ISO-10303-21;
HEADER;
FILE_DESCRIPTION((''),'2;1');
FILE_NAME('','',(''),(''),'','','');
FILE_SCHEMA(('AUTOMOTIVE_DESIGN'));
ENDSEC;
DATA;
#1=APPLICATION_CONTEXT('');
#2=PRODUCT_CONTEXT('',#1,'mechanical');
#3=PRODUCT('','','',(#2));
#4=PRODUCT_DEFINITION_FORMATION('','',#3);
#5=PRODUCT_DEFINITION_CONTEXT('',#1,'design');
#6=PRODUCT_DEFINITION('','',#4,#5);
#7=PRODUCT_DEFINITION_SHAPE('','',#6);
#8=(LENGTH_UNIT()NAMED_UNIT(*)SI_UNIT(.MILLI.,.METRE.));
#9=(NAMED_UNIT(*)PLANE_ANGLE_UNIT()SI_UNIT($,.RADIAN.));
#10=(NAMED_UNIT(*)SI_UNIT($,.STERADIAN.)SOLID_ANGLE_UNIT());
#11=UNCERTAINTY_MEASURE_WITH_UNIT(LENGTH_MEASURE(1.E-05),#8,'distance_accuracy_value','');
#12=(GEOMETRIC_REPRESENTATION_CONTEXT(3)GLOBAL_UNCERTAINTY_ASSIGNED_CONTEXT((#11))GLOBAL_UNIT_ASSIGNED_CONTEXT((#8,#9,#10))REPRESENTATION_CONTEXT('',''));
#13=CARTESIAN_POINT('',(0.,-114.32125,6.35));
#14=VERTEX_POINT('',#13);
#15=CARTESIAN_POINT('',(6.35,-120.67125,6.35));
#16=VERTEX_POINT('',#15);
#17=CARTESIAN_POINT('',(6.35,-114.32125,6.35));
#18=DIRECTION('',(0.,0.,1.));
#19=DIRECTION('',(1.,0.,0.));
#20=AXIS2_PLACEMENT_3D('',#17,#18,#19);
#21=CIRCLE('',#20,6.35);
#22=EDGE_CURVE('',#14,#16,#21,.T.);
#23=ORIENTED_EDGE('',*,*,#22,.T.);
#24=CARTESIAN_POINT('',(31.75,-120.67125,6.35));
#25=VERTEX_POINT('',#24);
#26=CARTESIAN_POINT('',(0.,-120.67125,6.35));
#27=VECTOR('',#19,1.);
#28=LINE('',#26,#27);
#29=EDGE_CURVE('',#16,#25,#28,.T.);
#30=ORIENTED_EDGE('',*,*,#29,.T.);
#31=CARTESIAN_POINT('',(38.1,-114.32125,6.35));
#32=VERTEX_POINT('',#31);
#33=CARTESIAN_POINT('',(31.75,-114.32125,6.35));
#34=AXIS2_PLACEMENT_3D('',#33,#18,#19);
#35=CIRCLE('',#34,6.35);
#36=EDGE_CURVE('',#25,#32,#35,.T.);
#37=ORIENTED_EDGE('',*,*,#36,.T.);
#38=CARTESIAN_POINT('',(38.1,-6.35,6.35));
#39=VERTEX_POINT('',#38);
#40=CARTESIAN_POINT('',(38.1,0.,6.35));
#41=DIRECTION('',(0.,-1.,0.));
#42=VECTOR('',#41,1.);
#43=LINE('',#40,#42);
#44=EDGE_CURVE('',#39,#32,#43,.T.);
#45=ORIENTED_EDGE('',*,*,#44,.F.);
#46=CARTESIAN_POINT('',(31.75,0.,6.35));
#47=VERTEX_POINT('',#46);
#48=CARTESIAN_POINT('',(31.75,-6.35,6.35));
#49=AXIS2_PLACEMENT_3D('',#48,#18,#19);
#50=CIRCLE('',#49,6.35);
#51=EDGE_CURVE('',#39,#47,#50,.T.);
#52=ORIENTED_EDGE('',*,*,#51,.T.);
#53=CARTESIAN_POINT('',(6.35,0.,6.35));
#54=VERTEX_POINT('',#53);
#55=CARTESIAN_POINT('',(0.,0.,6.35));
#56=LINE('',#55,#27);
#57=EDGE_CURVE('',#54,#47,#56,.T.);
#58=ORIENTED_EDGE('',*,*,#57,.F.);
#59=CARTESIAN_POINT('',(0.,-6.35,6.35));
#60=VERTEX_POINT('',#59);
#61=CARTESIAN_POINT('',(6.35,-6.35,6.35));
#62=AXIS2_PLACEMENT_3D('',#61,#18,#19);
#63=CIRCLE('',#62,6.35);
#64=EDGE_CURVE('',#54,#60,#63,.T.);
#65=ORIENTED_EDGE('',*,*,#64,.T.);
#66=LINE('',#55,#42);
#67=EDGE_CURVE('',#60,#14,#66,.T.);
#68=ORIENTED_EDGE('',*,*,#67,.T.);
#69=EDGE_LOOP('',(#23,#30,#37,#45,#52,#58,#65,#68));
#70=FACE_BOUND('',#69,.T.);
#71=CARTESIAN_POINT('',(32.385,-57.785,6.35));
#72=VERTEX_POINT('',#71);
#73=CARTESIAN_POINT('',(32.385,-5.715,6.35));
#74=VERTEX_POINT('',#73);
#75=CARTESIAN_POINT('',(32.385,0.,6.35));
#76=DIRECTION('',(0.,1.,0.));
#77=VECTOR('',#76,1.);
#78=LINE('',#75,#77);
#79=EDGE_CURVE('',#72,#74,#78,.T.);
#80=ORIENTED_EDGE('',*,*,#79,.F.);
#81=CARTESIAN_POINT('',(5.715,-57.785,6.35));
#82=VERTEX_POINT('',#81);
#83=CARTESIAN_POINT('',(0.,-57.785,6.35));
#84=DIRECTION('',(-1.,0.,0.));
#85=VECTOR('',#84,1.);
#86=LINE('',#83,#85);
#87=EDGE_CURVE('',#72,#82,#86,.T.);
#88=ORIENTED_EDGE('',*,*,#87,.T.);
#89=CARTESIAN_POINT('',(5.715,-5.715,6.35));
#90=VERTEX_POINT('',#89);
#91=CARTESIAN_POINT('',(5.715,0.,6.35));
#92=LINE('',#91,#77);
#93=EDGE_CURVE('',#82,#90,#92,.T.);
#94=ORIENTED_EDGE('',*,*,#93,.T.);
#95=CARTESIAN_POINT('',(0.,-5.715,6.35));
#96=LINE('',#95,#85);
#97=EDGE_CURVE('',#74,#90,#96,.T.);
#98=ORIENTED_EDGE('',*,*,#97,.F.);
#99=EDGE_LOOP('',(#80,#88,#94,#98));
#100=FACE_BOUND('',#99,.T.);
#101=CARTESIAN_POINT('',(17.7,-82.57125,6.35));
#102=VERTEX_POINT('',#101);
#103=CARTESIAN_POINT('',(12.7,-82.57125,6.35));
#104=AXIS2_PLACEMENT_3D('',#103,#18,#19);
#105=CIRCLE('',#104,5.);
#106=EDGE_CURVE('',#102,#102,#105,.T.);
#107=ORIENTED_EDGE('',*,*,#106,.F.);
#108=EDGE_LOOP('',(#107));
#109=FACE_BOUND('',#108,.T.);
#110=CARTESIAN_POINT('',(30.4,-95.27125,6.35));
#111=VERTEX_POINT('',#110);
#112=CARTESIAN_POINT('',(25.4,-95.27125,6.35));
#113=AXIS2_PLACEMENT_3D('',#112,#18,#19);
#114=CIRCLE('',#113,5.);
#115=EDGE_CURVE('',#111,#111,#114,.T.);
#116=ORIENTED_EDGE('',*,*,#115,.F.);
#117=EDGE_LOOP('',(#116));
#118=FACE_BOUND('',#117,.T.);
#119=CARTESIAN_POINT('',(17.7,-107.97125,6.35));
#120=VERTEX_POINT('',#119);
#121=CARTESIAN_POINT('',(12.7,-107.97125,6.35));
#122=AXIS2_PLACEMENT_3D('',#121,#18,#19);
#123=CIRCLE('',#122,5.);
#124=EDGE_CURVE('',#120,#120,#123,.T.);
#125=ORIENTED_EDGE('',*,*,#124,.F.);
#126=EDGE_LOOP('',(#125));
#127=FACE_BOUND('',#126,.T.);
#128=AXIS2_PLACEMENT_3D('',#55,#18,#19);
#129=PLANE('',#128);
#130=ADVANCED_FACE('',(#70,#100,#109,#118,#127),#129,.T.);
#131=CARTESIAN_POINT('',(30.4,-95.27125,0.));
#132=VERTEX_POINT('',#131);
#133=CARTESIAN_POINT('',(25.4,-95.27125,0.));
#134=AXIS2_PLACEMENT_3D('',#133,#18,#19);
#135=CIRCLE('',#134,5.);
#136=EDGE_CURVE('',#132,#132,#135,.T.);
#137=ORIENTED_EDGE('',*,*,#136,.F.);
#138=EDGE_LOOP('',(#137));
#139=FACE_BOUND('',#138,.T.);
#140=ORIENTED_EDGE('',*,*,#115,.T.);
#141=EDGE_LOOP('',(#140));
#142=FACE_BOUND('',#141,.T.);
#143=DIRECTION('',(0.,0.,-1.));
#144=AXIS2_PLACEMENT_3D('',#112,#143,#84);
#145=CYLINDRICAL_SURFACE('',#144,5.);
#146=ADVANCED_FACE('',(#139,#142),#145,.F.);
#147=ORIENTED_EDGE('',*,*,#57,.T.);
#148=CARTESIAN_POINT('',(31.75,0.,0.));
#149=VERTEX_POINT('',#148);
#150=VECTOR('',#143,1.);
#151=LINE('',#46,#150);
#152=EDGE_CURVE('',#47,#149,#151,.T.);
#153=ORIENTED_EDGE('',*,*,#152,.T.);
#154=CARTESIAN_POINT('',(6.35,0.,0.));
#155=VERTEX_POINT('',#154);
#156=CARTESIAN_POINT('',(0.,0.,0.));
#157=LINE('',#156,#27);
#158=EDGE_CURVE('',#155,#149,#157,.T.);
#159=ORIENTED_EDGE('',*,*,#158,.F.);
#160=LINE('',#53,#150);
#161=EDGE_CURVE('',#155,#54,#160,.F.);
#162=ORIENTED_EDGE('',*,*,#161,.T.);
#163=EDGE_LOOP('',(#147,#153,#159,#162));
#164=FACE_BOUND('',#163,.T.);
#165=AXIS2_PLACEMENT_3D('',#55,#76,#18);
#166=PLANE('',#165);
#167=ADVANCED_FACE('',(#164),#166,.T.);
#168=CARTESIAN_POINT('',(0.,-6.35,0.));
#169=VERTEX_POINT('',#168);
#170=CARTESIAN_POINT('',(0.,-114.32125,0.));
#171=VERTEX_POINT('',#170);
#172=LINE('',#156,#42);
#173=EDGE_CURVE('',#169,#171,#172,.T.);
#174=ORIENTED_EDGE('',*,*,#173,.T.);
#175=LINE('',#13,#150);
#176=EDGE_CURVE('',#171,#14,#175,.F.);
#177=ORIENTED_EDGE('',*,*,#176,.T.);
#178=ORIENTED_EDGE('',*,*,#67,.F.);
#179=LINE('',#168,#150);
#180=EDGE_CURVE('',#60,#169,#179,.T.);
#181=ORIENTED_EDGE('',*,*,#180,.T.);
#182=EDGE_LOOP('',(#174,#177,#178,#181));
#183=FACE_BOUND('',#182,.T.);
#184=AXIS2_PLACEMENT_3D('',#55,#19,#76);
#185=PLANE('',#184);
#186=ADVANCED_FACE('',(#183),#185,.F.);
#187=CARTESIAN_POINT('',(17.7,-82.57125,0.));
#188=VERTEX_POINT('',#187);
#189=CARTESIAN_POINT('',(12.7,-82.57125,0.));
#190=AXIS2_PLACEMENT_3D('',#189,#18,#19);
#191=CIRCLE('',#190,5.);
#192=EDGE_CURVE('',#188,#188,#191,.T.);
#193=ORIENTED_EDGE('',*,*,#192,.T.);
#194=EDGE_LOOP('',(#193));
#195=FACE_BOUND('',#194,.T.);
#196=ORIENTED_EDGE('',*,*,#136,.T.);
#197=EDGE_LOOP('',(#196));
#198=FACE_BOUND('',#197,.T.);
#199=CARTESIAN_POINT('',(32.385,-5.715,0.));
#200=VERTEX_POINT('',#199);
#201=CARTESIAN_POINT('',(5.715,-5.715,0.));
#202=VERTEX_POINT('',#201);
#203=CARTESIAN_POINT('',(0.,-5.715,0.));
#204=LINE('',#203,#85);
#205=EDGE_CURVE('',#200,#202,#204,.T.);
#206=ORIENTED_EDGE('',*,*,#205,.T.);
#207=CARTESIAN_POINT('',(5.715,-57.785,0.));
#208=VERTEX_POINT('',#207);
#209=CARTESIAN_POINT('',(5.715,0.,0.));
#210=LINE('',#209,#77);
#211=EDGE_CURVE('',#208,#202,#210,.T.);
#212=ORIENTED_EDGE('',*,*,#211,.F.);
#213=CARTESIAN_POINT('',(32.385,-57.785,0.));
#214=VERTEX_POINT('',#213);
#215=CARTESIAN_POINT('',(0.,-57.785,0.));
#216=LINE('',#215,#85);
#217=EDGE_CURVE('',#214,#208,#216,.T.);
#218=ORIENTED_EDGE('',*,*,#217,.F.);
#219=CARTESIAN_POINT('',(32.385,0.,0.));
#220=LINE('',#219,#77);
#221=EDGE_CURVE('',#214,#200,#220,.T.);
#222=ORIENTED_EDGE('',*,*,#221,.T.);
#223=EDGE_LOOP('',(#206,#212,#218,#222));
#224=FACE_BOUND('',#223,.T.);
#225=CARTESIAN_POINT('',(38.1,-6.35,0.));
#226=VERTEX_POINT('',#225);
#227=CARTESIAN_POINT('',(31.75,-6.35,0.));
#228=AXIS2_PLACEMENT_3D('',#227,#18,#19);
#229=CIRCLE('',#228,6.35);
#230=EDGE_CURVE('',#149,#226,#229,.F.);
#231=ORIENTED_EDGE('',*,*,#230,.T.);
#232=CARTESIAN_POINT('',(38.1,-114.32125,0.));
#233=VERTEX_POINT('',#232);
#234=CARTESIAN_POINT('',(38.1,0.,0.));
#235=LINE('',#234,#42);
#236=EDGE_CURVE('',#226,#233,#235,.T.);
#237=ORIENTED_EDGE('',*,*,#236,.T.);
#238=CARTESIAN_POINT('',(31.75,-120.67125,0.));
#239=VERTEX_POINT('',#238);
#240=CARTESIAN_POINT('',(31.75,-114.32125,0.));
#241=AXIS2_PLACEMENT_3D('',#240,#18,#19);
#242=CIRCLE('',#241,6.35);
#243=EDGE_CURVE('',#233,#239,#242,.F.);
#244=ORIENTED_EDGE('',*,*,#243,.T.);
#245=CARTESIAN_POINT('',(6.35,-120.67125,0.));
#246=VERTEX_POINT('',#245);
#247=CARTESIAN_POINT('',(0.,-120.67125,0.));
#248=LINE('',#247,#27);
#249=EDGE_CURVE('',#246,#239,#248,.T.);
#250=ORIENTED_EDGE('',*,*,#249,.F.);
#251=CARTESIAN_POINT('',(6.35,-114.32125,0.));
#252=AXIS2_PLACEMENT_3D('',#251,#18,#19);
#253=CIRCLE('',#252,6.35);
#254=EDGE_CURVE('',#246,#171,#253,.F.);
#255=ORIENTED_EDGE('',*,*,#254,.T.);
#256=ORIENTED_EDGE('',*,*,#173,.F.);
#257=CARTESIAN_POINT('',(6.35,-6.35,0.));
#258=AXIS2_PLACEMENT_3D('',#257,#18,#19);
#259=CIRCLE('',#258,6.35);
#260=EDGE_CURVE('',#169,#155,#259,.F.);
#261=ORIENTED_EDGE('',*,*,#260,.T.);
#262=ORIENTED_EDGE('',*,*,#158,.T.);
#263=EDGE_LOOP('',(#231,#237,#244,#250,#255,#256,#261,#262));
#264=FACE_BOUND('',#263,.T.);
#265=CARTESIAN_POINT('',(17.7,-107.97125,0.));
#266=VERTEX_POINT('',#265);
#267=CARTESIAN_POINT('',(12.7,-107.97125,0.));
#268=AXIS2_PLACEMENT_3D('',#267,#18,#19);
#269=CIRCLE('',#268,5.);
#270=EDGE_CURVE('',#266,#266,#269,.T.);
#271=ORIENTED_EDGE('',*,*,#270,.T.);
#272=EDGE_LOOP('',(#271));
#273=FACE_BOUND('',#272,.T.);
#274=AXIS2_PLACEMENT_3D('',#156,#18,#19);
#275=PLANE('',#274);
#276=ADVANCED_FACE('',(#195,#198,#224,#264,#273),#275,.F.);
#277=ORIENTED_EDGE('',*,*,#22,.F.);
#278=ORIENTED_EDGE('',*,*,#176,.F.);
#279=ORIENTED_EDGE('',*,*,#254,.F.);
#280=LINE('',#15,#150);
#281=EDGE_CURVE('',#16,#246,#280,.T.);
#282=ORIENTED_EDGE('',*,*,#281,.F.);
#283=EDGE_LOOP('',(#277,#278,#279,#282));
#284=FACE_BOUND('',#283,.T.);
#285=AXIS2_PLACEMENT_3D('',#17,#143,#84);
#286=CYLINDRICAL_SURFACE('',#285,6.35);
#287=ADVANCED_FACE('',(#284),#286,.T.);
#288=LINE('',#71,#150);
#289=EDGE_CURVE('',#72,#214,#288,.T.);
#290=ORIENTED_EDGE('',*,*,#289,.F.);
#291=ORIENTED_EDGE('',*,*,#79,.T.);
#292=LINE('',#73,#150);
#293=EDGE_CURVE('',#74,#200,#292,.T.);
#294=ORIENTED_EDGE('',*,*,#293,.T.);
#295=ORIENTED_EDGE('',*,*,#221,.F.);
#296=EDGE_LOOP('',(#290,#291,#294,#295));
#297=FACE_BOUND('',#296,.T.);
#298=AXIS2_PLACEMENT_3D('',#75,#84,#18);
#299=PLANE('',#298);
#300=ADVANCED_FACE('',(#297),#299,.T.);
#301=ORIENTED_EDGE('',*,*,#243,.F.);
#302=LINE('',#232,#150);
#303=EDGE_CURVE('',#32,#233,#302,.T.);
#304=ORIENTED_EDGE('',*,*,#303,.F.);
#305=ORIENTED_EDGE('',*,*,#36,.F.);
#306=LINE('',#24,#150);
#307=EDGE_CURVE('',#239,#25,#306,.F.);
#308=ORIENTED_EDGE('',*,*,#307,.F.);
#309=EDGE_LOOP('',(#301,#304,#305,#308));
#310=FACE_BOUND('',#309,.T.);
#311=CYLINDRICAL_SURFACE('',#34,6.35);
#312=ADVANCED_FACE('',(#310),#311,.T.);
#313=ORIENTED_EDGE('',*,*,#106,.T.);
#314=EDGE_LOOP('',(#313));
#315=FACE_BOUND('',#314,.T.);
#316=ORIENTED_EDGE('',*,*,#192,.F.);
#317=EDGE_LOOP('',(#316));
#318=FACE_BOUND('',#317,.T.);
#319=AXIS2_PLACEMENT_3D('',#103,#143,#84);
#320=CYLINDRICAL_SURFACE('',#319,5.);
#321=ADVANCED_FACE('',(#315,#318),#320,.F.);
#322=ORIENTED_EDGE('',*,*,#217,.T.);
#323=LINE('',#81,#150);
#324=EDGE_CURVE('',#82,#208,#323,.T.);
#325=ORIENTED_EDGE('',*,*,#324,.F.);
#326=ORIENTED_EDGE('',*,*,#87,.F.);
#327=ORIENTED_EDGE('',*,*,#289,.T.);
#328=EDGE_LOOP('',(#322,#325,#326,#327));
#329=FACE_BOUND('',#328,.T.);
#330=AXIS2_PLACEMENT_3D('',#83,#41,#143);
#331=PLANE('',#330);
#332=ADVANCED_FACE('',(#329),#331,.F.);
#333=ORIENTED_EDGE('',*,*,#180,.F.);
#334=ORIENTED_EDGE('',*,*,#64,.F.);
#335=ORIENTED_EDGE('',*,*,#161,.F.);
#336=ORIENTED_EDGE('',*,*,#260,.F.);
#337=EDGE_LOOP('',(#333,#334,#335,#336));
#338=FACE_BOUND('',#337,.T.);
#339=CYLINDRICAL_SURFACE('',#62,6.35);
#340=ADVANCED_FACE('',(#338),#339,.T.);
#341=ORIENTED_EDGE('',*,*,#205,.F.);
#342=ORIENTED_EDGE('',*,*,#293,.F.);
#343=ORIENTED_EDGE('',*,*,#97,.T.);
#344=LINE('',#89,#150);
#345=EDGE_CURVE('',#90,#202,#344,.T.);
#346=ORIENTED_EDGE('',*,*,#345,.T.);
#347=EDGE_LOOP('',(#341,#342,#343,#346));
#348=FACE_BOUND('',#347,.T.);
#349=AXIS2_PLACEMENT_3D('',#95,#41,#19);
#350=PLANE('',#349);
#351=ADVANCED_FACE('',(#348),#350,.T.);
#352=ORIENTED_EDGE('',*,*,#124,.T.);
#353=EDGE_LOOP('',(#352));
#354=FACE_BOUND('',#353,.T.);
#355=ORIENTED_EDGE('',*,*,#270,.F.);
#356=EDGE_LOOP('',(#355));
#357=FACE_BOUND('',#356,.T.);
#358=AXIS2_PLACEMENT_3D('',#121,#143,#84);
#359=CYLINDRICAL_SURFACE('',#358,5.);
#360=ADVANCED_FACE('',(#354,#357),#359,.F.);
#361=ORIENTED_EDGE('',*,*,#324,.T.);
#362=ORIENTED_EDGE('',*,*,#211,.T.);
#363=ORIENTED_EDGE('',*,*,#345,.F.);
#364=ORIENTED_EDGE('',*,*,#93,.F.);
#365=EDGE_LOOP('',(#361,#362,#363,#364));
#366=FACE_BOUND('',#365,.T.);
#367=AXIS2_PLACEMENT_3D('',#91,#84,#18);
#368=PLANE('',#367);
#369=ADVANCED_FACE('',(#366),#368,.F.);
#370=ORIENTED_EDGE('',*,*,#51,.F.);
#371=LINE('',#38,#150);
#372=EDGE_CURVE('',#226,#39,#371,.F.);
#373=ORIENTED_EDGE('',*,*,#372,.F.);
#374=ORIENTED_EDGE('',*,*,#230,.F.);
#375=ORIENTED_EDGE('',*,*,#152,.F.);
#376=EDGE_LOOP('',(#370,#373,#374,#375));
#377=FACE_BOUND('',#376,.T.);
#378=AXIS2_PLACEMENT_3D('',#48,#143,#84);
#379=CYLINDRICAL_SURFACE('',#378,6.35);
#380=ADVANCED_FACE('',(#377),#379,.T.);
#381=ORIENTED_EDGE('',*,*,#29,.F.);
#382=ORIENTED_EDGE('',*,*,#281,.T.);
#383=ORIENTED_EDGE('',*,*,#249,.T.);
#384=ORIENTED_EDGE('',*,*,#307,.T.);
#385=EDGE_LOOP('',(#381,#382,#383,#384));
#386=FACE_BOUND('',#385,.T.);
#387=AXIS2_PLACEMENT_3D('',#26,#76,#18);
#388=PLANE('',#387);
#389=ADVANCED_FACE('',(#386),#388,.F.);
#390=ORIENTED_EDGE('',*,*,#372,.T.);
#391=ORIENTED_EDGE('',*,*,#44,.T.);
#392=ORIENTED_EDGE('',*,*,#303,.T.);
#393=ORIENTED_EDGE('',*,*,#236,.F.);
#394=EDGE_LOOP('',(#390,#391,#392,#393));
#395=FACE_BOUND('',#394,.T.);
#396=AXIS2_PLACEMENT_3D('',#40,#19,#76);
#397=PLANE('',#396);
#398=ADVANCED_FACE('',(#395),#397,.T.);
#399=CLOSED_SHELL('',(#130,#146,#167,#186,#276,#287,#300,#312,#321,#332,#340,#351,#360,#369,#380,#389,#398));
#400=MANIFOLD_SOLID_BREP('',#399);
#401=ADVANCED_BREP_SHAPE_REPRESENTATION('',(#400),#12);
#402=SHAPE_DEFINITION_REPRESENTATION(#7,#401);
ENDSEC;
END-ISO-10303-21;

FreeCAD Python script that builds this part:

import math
import FreeCAD as App
import Part
import Sketcher

V = App.Vector
Q = App.Units.Quantity


def edges_at(feature, points):
    """Names of the edges that pass closest to the given points."""
    edges = feature.Shape.Edges
    near = lambda p: min(range(len(edges)), key=lambda i: edges[i].distToShape(Part.Vertex(*p))[0])
    return sorted({f"Edge{near(p) + 1}" for p in points})


def add_polygon(sketch, points):
    """Adds a closed chain of lines whose ends are joined by coincident constraints."""
    first, n = sketch.GeometryCount, len(points)
    for a, b in zip(points, points[1:] + points[:1]):
        sketch.addGeometry(Part.LineSegment(App.Vector(*a, 0), App.Vector(*b, 0)), False)
    for i in range(n):
        sketch.addConstraint(Sketcher.Constraint("Coincident", first + i, 2, first + (i + 1) % n, 1))

doc = App.newDocument("Part")
body = doc.addObject("PartDesign::Body", "Body")

sketch1 = doc.addObject("Sketcher::SketchObject", "Sketch")
body.addObject(sketch1)
sketch1.AttachmentSupport = (doc.XY_Plane, [""])
sketch1.MapMode = "FlatFace"
add_polygon(sketch1, [(0, -121), (38, -121), (38, 0), (0, 0)])
sketch1.addGeometry(Part.ArcOfCircle(Part.Circle(V(13, -108, 0), V(0, 0, 1), 5), math.radians(90), math.radians(270)), False)
sketch1.addGeometry(Part.ArcOfCircle(Part.Circle(V(13, -108, 0), V(0, 0, 1), 5), math.radians(0), math.radians(90)), False)
sketch1.addGeometry(Part.ArcOfCircle(Part.Circle(V(13, -108, 0), V(0, 0, 1), 5), math.radians(-90), math.radians(0)), False)
sketch1.addGeometry(Part.ArcOfCircle(Part.Circle(V(13, -83, 0), V(0, 0, 1), 5), math.radians(90), math.radians(270)), False)
sketch1.addGeometry(Part.ArcOfCircle(Part.Circle(V(13, -83, 0), V(0, 0, 1), 5), math.radians(0), math.radians(90)), False)
sketch1.addGeometry(Part.ArcOfCircle(Part.Circle(V(13, -83, 0), V(0, 0, 1), 5), math.radians(-90), math.radians(0)), False)
sketch1.addGeometry(Part.ArcOfCircle(Part.Circle(V(25, -95, 0), V(0, 0, 1), 5), math.radians(90), math.radians(270)), False)
sketch1.addGeometry(Part.ArcOfCircle(Part.Circle(V(25, -95, 0), V(0, 0, 1), 5), math.radians(0), math.radians(90)), False)
sketch1.addGeometry(Part.ArcOfCircle(Part.Circle(V(25, -95, 0), V(0, 0, 1), 5), math.radians(-90), math.radians(0)), False)
add_polygon(sketch1, [(32, -58), (6, -58), (6, -6), (32, -6)])
sketch1.addConstraint(Sketcher.Constraint("Tangent", 4, 1, 5, 2))
sketch1.addConstraint(Sketcher.Constraint("Tangent", 5, 1, 6, 2))
sketch1.addConstraint(Sketcher.Constraint("Tangent", 6, 1, 4, 2))
sketch1.addConstraint(Sketcher.Constraint("Tangent", 7, 1, 8, 2))
sketch1.addConstraint(Sketcher.Constraint("Tangent", 8, 1, 9, 2))
sketch1.addConstraint(Sketcher.Constraint("Tangent", 9, 1, 7, 2))
sketch1.addConstraint(Sketcher.Constraint("Tangent", 10, 1, 11, 2))
sketch1.addConstraint(Sketcher.Constraint("Tangent", 11, 1, 12, 2))
sketch1.addConstraint(Sketcher.Constraint("Tangent", 12, 1, 10, 2))
sketch1.addConstraint(Sketcher.Constraint("Horizontal", 0))
sketch1.addConstraint(Sketcher.Constraint("Vertical", 1))
sketch1.addConstraint(Sketcher.Constraint("Horizontal", 2))
sketch1.addConstraint(Sketcher.Constraint("Vertical", 3))
sketch1.addConstraint(Sketcher.Constraint("Horizontal", 13))
sketch1.addConstraint(Sketcher.Constraint("Vertical", 14))
sketch1.addConstraint(Sketcher.Constraint("Horizontal", 15))
sketch1.addConstraint(Sketcher.Constraint("Vertical", 16))
sketch1.addConstraint(Sketcher.Constraint("Coincident", 2, 2, -1, 1))
sketch1.addConstraint(Sketcher.Constraint("Equal", 6, 7))
sketch1.addConstraint(Sketcher.Constraint("Equal", 9, 10))
sketch1.addConstraint(Sketcher.Constraint("Horizontal", 6, 3, 5, 1))
sketch1.addConstraint(Sketcher.Constraint("Horizontal", 9, 3, 8, 1))
sketch1.addConstraint(Sketcher.Constraint("Horizontal", 12, 3, 11, 1))
sketch1.addConstraint(Sketcher.Constraint("Vertical", 6, 3, 7, 3))
sketch1.addConstraint(Sketcher.Constraint("Vertical", 9, 3, 4, 1))
sketch1.addConstraint(Sketcher.Constraint("Vertical", 4, 1, 6, 1))
sketch1.addConstraint(Sketcher.Constraint("Vertical", 6, 1, 7, 1))
sketch1.addConstraint(Sketcher.Constraint("Vertical", 7, 1, 9, 1))
sketch1.addConstraint(Sketcher.Constraint("Vertical", 12, 3, 10, 1))
sketch1.addConstraint(Sketcher.Constraint("Vertical", 10, 1, 12, 1))
sketch1.addConstraint(Sketcher.Constraint("DistanceX", 0, 1, 0, 2, Q("1.5 in")))
sketch1.addConstraint(Sketcher.Constraint("DistanceX", -1, 1, 10, 3, Q("1 in")))
sketch1.addConstraint(Sketcher.Constraint("DistanceY", 4, 3, 7, 3, Q("1 in")))
sketch1.addConstraint(Sketcher.Constraint("DistanceX", 4, 3, 0, 2, Q("1 in")))
sketch1.addConstraint(Sketcher.Constraint("DistanceY", 0, 2, 10, 3, Q("1 in")))
sketch1.addConstraint(Sketcher.Constraint("DistanceX", 13, 2, 13, 1, Q("1.05 in")))
sketch1.addConstraint(Sketcher.Constraint("DistanceY", 14, 1, 14, 2, Q("2.05 in")))
sketch1.addConstraint(Sketcher.Constraint("DistanceY", 10, 3, 7, 3, Q("0.5 in")))
sketch1.addConstraint(Sketcher.Constraint("Radius", 4, Q("5 mm")))
sketch1.addConstraint(Sketcher.Constraint("DistanceX", -1, 1, 13, 2, Q("0.225 in")))
sketch1.addConstraint(Sketcher.Constraint("DistanceY", 13, 2, -1, 1, Q("2.275 in")))
sketch1.addConstraint(Sketcher.Constraint("DistanceY", 1, 1, 1, 2, Q("120.67125 mm")))
pad1 = doc.addObject("PartDesign::Pad", "Pad")
body.addObject(pad1)
pad1.Profile = sketch1
pad1.Length = Q("0.25 in")
doc.recompute()

fillet = doc.addObject("PartDesign::Fillet", "Fillet")
body.addObject(fillet)
fillet.Base = (pad1, edges_at(pad1, [
    (0, -120.671, 3.175),
    (0, 0, 3.175),
    (38.1, 0, 3.175),
    (38.1, -120.671, 3.175),
]))
fillet.Radius = Q("0.25 in")

doc.recompute()
